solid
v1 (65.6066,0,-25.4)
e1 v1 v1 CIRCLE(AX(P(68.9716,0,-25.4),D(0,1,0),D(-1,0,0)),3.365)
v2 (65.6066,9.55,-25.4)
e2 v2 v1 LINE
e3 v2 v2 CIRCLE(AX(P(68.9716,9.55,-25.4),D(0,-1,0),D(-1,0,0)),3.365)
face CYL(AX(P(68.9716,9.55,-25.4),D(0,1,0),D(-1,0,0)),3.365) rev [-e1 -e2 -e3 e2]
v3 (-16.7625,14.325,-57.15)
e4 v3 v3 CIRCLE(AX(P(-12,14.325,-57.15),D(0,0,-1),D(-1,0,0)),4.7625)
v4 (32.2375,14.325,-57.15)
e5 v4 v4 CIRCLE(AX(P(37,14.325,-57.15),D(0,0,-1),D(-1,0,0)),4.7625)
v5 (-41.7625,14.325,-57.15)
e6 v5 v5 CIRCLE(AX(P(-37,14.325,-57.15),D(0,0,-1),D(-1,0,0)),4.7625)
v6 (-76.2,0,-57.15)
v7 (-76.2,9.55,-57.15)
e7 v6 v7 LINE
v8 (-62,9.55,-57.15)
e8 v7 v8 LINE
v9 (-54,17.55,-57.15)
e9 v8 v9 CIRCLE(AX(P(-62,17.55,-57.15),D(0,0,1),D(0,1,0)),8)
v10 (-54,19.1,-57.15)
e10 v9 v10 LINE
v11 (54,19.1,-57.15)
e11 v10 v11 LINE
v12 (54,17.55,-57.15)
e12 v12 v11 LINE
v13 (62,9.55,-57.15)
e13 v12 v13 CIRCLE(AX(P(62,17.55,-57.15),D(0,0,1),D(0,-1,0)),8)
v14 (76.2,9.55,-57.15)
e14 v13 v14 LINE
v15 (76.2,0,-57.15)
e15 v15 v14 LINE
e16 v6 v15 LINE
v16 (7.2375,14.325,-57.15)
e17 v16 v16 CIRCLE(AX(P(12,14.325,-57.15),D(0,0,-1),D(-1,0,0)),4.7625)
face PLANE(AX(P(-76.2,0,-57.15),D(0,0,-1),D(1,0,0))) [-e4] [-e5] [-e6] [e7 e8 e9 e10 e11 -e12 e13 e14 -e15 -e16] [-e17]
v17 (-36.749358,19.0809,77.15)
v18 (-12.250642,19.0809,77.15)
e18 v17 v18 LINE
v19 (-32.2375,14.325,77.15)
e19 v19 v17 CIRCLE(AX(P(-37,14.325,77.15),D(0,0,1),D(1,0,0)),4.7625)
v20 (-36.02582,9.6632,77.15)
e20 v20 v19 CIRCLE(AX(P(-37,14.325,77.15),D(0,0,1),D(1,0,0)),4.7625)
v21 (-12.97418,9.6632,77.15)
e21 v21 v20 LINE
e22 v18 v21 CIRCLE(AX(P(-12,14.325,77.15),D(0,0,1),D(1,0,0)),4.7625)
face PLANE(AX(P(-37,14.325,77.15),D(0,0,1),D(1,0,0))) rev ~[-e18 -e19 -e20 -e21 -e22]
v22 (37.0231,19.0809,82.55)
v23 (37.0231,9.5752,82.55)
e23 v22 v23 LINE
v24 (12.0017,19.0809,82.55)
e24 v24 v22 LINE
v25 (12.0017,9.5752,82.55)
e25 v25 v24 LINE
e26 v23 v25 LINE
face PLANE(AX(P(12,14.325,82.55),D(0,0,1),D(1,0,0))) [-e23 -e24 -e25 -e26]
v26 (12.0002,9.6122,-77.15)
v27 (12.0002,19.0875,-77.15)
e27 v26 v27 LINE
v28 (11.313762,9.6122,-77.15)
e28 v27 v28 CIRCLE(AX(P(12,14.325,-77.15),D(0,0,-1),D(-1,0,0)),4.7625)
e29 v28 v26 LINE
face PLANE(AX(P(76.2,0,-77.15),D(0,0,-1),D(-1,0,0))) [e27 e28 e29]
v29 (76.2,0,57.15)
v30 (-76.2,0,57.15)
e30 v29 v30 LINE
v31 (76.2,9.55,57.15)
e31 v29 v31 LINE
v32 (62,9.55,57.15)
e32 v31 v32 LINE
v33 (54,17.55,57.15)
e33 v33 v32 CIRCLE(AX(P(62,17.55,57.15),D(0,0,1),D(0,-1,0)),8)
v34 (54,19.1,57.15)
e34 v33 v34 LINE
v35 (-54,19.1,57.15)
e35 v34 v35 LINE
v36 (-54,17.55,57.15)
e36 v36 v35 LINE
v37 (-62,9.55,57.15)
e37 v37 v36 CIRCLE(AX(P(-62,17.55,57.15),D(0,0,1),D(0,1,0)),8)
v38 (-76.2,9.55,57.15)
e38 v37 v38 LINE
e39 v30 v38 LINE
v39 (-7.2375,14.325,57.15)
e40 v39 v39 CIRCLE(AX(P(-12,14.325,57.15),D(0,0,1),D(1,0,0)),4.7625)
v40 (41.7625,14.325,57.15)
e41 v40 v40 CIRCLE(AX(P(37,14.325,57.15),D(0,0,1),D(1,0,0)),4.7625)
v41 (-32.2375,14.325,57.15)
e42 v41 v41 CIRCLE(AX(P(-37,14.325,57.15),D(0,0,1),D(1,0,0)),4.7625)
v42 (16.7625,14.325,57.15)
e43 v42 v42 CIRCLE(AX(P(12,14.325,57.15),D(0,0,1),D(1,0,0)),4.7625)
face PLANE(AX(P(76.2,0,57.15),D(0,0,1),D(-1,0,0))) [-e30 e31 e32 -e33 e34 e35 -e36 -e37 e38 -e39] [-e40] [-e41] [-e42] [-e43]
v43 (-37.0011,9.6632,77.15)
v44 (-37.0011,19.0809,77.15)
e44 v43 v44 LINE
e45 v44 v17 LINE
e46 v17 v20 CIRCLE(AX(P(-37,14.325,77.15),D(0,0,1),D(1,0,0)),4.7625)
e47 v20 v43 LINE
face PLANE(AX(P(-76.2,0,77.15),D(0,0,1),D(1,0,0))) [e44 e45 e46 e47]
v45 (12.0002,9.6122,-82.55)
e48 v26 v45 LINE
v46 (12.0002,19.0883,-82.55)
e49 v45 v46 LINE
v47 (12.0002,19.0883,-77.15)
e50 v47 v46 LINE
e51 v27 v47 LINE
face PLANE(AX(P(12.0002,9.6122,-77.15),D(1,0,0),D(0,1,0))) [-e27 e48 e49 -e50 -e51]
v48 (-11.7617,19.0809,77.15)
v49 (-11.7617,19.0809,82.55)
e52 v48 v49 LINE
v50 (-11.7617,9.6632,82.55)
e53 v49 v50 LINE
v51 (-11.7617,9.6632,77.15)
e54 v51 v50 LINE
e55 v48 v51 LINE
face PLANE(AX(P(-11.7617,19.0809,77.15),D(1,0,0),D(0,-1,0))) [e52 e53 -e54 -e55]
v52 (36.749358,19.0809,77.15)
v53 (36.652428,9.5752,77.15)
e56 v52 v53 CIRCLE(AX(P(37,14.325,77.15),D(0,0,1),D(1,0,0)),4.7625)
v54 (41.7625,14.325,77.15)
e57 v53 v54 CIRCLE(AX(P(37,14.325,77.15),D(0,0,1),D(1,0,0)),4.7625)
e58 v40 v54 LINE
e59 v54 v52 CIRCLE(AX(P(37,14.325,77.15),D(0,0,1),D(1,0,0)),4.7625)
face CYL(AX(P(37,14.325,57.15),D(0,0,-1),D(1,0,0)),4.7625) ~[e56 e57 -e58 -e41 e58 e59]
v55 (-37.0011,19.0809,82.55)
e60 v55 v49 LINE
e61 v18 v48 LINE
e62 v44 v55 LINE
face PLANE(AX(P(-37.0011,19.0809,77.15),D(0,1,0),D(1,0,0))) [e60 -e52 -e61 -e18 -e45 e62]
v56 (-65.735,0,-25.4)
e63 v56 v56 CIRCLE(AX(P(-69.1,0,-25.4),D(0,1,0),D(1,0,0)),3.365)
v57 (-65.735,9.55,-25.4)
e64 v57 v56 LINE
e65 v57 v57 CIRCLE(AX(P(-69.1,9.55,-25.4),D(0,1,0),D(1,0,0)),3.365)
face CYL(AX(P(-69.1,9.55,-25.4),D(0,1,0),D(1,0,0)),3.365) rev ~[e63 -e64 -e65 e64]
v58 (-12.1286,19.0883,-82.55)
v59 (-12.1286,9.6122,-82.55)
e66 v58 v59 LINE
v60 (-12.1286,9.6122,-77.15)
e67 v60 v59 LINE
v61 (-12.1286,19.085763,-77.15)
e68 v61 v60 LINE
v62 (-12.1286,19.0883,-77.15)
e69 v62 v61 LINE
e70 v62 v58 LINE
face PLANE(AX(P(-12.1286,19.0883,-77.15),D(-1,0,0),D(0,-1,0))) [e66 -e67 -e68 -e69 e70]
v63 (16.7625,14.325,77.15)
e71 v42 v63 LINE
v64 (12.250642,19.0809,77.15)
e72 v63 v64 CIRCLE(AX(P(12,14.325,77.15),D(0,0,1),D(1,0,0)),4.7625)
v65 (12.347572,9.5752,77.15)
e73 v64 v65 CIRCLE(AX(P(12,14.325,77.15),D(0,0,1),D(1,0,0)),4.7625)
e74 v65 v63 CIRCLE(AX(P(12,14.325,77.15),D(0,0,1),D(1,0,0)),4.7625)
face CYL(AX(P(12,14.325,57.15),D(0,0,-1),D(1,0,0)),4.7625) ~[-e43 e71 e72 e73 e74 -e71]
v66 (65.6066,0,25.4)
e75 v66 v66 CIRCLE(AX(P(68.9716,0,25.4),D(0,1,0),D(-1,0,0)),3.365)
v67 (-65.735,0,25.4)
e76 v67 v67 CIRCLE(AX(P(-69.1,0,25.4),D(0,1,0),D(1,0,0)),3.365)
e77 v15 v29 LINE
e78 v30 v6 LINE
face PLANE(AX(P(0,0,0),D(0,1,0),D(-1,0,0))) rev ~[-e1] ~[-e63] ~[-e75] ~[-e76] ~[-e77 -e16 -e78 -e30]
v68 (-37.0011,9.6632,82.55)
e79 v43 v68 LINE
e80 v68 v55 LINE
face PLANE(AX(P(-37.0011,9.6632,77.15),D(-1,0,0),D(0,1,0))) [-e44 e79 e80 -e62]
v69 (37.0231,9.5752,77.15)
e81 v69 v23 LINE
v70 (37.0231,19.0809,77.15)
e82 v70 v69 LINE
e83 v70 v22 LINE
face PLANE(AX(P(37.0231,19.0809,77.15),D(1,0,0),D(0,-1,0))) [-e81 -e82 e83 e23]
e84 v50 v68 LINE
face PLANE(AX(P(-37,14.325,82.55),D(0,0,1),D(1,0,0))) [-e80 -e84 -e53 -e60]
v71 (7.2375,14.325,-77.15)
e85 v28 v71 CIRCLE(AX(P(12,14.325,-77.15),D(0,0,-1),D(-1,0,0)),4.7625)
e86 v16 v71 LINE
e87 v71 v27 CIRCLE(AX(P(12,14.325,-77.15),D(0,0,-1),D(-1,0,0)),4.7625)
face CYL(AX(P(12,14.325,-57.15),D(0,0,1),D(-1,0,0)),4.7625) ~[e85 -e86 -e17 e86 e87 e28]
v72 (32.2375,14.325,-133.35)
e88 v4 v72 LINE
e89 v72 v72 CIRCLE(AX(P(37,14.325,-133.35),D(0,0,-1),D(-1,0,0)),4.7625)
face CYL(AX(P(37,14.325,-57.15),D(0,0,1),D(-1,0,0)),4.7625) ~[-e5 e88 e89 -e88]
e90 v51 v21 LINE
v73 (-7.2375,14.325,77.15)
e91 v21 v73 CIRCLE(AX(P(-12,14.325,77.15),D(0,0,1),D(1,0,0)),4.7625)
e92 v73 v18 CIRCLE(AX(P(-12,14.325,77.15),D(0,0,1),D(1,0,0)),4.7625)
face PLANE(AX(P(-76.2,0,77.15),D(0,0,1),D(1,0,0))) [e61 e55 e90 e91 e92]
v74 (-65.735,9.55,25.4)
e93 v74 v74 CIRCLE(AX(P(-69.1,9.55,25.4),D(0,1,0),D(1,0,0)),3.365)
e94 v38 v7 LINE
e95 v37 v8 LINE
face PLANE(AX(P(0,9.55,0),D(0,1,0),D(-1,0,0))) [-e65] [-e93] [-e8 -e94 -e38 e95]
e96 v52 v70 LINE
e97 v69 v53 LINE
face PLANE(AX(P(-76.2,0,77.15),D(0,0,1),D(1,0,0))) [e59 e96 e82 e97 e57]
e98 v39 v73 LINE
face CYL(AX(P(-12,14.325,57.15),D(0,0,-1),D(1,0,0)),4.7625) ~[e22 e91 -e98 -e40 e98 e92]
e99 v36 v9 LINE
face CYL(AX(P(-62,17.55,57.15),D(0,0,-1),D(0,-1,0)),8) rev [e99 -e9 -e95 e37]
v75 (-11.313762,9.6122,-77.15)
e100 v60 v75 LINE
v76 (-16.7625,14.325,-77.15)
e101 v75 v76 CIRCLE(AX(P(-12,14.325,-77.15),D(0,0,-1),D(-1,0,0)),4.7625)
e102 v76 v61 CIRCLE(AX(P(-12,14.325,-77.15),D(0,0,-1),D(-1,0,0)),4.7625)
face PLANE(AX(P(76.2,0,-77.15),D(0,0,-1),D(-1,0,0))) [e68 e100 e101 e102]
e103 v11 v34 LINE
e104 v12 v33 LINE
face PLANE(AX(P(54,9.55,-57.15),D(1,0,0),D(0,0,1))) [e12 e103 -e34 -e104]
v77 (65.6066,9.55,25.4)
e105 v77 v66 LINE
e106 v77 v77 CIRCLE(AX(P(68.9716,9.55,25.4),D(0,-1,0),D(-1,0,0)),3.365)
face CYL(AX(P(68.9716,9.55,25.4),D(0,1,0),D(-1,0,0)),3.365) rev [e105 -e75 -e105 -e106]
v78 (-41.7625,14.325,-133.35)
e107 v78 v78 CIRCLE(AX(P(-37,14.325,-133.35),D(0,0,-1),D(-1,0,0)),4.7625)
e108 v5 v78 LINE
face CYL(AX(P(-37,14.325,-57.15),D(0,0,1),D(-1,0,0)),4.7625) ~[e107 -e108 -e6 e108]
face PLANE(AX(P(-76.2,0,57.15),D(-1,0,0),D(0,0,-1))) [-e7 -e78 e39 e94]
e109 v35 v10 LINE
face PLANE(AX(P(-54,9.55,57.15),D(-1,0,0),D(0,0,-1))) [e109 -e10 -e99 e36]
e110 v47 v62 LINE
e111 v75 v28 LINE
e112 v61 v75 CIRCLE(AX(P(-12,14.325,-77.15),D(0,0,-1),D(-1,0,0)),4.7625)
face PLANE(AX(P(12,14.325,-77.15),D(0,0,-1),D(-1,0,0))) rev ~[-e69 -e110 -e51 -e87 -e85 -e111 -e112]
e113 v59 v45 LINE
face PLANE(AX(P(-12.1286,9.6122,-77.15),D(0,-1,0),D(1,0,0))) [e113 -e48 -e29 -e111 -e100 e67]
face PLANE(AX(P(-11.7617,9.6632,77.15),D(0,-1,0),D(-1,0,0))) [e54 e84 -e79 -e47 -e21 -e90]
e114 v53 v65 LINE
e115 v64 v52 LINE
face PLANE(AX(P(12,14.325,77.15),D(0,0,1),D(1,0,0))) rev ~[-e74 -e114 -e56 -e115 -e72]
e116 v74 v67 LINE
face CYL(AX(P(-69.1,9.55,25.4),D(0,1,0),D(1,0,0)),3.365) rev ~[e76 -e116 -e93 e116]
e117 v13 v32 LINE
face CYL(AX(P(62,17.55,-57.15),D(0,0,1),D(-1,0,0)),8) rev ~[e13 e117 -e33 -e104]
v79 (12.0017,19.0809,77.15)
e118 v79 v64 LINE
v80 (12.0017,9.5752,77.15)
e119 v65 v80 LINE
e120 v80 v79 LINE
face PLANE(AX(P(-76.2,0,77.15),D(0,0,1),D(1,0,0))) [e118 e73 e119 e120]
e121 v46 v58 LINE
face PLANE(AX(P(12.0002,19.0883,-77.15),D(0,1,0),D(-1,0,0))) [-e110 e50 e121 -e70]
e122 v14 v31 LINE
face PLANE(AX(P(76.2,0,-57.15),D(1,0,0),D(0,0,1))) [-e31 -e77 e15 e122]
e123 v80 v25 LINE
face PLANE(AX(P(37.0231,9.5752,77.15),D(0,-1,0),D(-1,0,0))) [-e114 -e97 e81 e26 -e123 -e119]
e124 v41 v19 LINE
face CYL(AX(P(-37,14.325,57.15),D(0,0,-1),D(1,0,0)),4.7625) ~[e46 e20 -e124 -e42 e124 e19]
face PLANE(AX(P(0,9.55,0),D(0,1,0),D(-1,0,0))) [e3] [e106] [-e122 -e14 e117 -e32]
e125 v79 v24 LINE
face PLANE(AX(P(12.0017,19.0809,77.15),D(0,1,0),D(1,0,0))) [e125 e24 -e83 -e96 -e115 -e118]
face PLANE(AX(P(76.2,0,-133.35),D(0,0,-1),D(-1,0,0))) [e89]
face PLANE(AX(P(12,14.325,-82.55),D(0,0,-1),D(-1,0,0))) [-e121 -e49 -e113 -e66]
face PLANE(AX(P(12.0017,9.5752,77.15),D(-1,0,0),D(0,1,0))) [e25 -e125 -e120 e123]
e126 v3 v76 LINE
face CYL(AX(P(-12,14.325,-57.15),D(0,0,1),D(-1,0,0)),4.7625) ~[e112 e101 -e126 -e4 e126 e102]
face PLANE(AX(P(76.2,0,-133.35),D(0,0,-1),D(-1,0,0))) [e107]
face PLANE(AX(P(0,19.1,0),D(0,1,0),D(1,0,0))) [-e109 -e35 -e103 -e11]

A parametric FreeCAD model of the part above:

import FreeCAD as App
import Part
import Sketcher
Q = App.Units.Quantity


def edges_at(feature, points):
    """Names of the edges that pass closest to the given points."""
    edges = feature.Shape.Edges
    near = lambda p: min(range(len(edges)), key=lambda i: edges[i].distToShape(Part.Vertex(*p))[0])
    return sorted({f"Edge{near(p) + 1}" for p in points})


def add_polygon(sketch, points):
    """Adds a closed chain of lines whose ends are joined by coincident constraints."""
    first, n = sketch.GeometryCount, len(points)
    for a, b in zip(points, points[1:] + points[:1]):
        sketch.addGeometry(Part.LineSegment(App.Vector(*a, 0), App.Vector(*b, 0)), False)
    for i in range(n):
        sketch.addConstraint(Sketcher.Constraint("Coincident", first + i, 2, first + (i + 1) % n, 1))

doc = App.newDocument("Part")
body = doc.addObject("PartDesign::Body", "Body")

# Sketch on XZ plane
sketch1 = body.newObject("Sketcher::SketchObject", "Sketch")
sketch1.AttachmentSupport = (doc.getObject("XZ_Plane"), [""])
sketch1.MapMode = "FlatFace"
add_polygon(sketch1, [(-76.2, 57.15), (76.2, 57.15), (76.2, -57.15), (-76.2, -57.15)])  # lines 0-3
sketch1.addConstraint(Sketcher.Constraint("Horizontal", 0))
sketch1.addConstraint(Sketcher.Constraint("Vertical", 1))
sketch1.addConstraint(Sketcher.Constraint("Horizontal", 2))
sketch1.addConstraint(Sketcher.Constraint("Vertical", 3))
sketch1.addConstraint(Sketcher.Constraint("Symmetric", 0, 2, 2, 2, -1, 1))
sketch1.addConstraint(Sketcher.Constraint("DistanceX", 0, 1, 0, 2, Q("6 in")))
sketch1.addConstraint(Sketcher.Constraint("DistanceY", 1, 2, 1, 1, Q("4.5 in")))
pad1 = body.newObject("PartDesign::Pad", "Pad")
pad1.Profile = sketch1
pad1.Length = 9.55
pad1.Reversed = True

# Sketch on XZ plane
sketch2 = body.newObject("Sketcher::SketchObject", "Sketch001")
sketch2.AttachmentSupport = (doc.getObject("XZ_Plane"), [""])
sketch2.MapMode = "FlatFace"
sketch2.AttachmentOffset = App.Placement(App.Vector(0, 0, -9.55), App.Rotation())
add_polygon(sketch2, [(-54, 57.15), (54, 57.15), (54, -57.15), (-54, -57.15)])  # lines 0-3
sketch2.addConstraint(Sketcher.Constraint("Horizontal", 0))
sketch2.addConstraint(Sketcher.Constraint("Vertical", 1))
sketch2.addConstraint(Sketcher.Constraint("Horizontal", 2))
sketch2.addConstraint(Sketcher.Constraint("Vertical", 3))
sketch2.addConstraint(Sketcher.Constraint("Symmetric", 0, 2, 2, 2, -1, 1))
sketch2.addConstraint(Sketcher.Constraint("DistanceY", 1, 2, 1, 1, Q("4.5 in")))
sketch2.addConstraint(Sketcher.Constraint("DistanceX", 0, 1, 0, 2, Q("108 mm")))
pad2 = body.newObject("PartDesign::Pad", "Pad001")
pad2.Profile = sketch2
pad2.Length = 9.55
pad2.Reversed = True
doc.recompute()

fillet = body.newObject("PartDesign::Fillet", "Fillet")
fillet.Base = (pad2, edges_at(pad2, [(-54, 9.55, 0)]))
fillet.Radius = 8
doc.recompute()

fillet2 = body.newObject("PartDesign::Fillet", "Fillet001")
fillet2.Base = (fillet, edges_at(fillet, [(54, 9.55, 0)]))
fillet2.Radius = 8

# Sketch on XY plane
sketch3 = body.newObject("Sketcher::SketchObject", "Sketch002")
sketch3.AttachmentSupport = (doc.getObject("XY_Plane"), [""])
sketch3.MapMode = "FlatFace"
sketch3.AttachmentOffset = App.Placement(App.Vector(0, 0, 2.25 * 25.4), App.Rotation())
sketch3.addGeometry(Part.Circle(App.Vector(-37, 14.325, 0), App.Vector(0, 0, 1), 4.7625), False)
sketch3.addGeometry(Part.Circle(App.Vector(-12, 14.325, 0), App.Vector(0, 0, 1), 4.7625), False)
sketch3.addGeometry(Part.Circle(App.Vector(12, 14.325, 0), App.Vector(0, 0, 1), 4.7625), False)
sketch3.addGeometry(Part.Circle(App.Vector(37, 14.325, 0), App.Vector(0, 0, 1), 4.7625), False)
sketch3.addConstraint(Sketcher.Constraint("Equal", 0, 1))
sketch3.addConstraint(Sketcher.Constraint("Equal", 1, 2))
sketch3.addConstraint(Sketcher.Constraint("Equal", 2, 3))
sketch3.addConstraint(Sketcher.Constraint("Symmetric", 1, 3, 2, 3, -2))
sketch3.addConstraint(Sketcher.Constraint("Symmetric", 0, 3, 3, 3, -2))
sketch3.addConstraint(Sketcher.Constraint("Horizontal", 0, 3, 1, 3))
sketch3.addConstraint(Sketcher.Constraint("Diameter", 0, Q("0.375 in")))
sketch3.addConstraint(Sketcher.Constraint("DistanceX", 0, 3, 1, 3, Q("25 mm")))
sketch3.addConstraint(Sketcher.Constraint("DistanceX", 0, 3, -1, 1, Q("1.4567 in")))
sketch3.addConstraint(Sketcher.Constraint("DistanceY", -1, 1, 0, 3, Q("14.325 mm")))
pad3 = body.newObject("PartDesign::Pad", "Pad002")
pad3.Profile = sketch3
pad3.Length = Q("0.7874016 in")

# Sketch on XY plane
sketch4 = body.newObject("Sketcher::SketchObject", "Sketch003")
sketch4.AttachmentSupport = (doc.getObject("XY_Plane"), [""])
sketch4.MapMode = "FlatFace"
sketch4.AttachmentOffset = App.Placement(App.Vector(0, 0, 3.0374016 * 25.4), App.Rotation())
add_polygon(sketch4, [(-11.7617, 19.0809), (-37.0011, 19.0809), (-37.0011, 9.6632), (-11.7617, 9.6632)])  # lines 0-3
sketch4.addConstraint(Sketcher.Constraint("Horizontal", 0))
sketch4.addConstraint(Sketcher.Constraint("Vertical", 1))
sketch4.addConstraint(Sketcher.Constraint("Horizontal", 2))
sketch4.addConstraint(Sketcher.Constraint("Vertical", 3))
sketch4.addConstraint(Sketcher.Constraint("DistanceX", 0, 2, 0, 1, Q("25.2394 mm")))
sketch4.addConstraint(Sketcher.Constraint("DistanceY", 1, 2, 1, 1, Q("9.4177 mm")))
sketch4.addConstraint(Sketcher.Constraint("DistanceX", 0, 2, -1, 1, Q("37.001 mm")))
sketch4.addConstraint(Sketcher.Constraint("DistanceY", -1, 1, 0, 2, Q("19.081 mm")))
pad4 = body.newObject("PartDesign::Pad", "Pad003")
pad4.Profile = sketch4
pad4.Length = Q("0.2125984 in")

# Sketch on XY plane
sketch5 = body.newObject("Sketcher::SketchObject", "Sketch004")
sketch5.AttachmentSupport = (doc.getObject("XY_Plane"), [""])
sketch5.MapMode = "FlatFace"
sketch5.AttachmentOffset = App.Placement(App.Vector(0, 0, 3.0374016 * 25.4), App.Rotation())
add_polygon(sketch5, [(37.0231, 19.0809), (12.0017, 19.0809), (12.0017, 9.5752), (37.0231, 9.5752)])  # lines 0-3
sketch5.addConstraint(Sketcher.Constraint("Horizontal", 0))
sketch5.addConstraint(Sketcher.Constraint("Vertical", 1))
sketch5.addConstraint(Sketcher.Constraint("Horizontal", 2))
sketch5.addConstraint(Sketcher.Constraint("Vertical", 3))
sketch5.addConstraint(Sketcher.Constraint("DistanceX", 0, 2, 0, 1, Q("0.9851 in")))
sketch5.addConstraint(Sketcher.Constraint("DistanceY", 1, 2, 1, 1, Q("9.5057 mm")))
sketch5.addConstraint(Sketcher.Constraint("DistanceX", -1, 1, 0, 2, Q("0.4725 in")))
sketch5.addConstraint(Sketcher.Constraint("DistanceY", -1, 1, 0, 2, Q("19.081 mm")))
pad5 = body.newObject("PartDesign::Pad", "Pad004")
pad5.Profile = sketch5
pad5.Length = Q("0.2125984 in")

# Sketch on XY plane
sketch6 = body.newObject("Sketcher::SketchObject", "Sketch005")
sketch6.AttachmentSupport = (doc.getObject("XY_Plane"), [""])
sketch6.MapMode = "FlatFace"
sketch6.AttachmentOffset = App.Placement(App.Vector(0, 0, -2.25 * 25.4), App.Rotation())
sketch6.addGeometry(Part.Circle(App.Vector(37, 14.325, 0), App.Vector(0, 0, 1), 4.7625), False)
sketch6.addGeometry(Part.Circle(App.Vector(-37, 14.325, 0), App.Vector(0, 0, 1), 4.7625), False)
sketch6.addConstraint(Sketcher.Constraint("Equal", 0, 1))
sketch6.addConstraint(Sketcher.Constraint("Symmetric", 0, 3, 1, 3, -2))
sketch6.addConstraint(Sketcher.Constraint("Diameter", 0, Q("0.375 in")))
sketch6.addConstraint(Sketcher.Constraint("DistanceX", -1, 1, 0, 3, Q("1.4567 in")))
sketch6.addConstraint(Sketcher.Constraint("DistanceY", -1, 1, 0, 3, Q("14.325 mm")))
pad6 = body.newObject("PartDesign::Pad", "Pad005")
pad6.Profile = sketch6
pad6.Length = Q("3 in")
pad6.Reversed = True

# Sketch on XY plane
sketch7 = body.newObject("Sketcher::SketchObject", "Sketch006")
sketch7.AttachmentSupport = (doc.getObject("XY_Plane"), [""])
sketch7.MapMode = "FlatFace"
sketch7.AttachmentOffset = App.Placement(App.Vector(0, 0, -2.25 * 25.4), App.Rotation())
sketch7.addGeometry(Part.Circle(App.Vector(12, 14.325, 0), App.Vector(0, 0, 1), 4.7625), False)
sketch7.addGeometry(Part.Circle(App.Vector(-12, 14.325, 0), App.Vector(0, 0, 1), 4.7625), False)
sketch7.addConstraint(Sketcher.Constraint("Equal", 0, 1))
sketch7.addConstraint(Sketcher.Constraint("Symmetric", 0, 3, 1, 3, -2))
sketch7.addConstraint(Sketcher.Constraint("Diameter", 0, Q("0.375 in")))
sketch7.addConstraint(Sketcher.Constraint("DistanceX", -1, 1, 0, 3, Q("12 mm")))
sketch7.addConstraint(Sketcher.Constraint("DistanceY", -1, 1, 0, 3, Q("14.325 mm")))
pad7 = body.newObject("PartDesign::Pad", "Pad006")
pad7.Profile = sketch7
pad7.Length = Q("0.7874016 in")
pad7.Reversed = True

# Sketch on XY plane
sketch8 = body.newObject("Sketcher::SketchObject", "Sketch007")
sketch8.AttachmentSupport = (doc.getObject("XY_Plane"), [""])
sketch8.MapMode = "FlatFace"
sketch8.AttachmentOffset = App.Placement(App.Vector(0, 0, -3.0374016 * 25.4), App.Rotation())
add_polygon(sketch8, [(-12.1286, 19.0883), (12.0002, 19.0883), (12.0002, 9.6122), (-12.1286, 9.6122)])  # lines 0-3
sketch8.addConstraint(Sketcher.Constraint("Horizontal", 0))
sketch8.addConstraint(Sketcher.Constraint("Vertical", 1))
sketch8.addConstraint(Sketcher.Constraint("Horizontal", 2))
sketch8.addConstraint(Sketcher.Constraint("Vertical", 3))
sketch8.addConstraint(Sketcher.Constraint("DistanceX", 0, 1, 0, 2, Q("24.1288 mm")))
sketch8.addConstraint(Sketcher.Constraint("DistanceY", 1, 2, 1, 1, Q("9.476 mm")))
sketch8.addConstraint(Sketcher.Constraint("DistanceY", -1, 1, 0, 2, Q("0.7515 in")))
sketch8.addConstraint(Sketcher.Constraint("DistanceX", 2, 2, -1, 1, Q("0.4775 in")))
pad8 = body.newObject("PartDesign::Pad", "Pad007")
pad8.Profile = sketch8
pad8.Length = Q("0.2125984 in")
pad8.Reversed = True

# Sketch on XZ plane
sketch9 = body.newObject("Sketcher::SketchObject", "Sketch008")
sketch9.AttachmentSupport = (doc.getObject("XZ_Plane"), [""])
sketch9.MapMode = "FlatFace"
sketch9.AttachmentOffset = App.Placement(App.Vector(0, 0, -9.55), App.Rotation())
sketch9.addGeometry(Part.Circle(App.Vector(-69.1, -25.4, 0), App.Vector(0, 0, 1), 3.365), False)
sketch9.addGeometry(Part.Circle(App.Vector(-69.1, 25.4, 0), App.Vector(0, 0, 1), 3.365), False)
sketch9.addConstraint(Sketcher.Constraint("Equal", 0, 1))
sketch9.addConstraint(Sketcher.Constraint("Symmetric", 0, 3, 1, 3, -1))
sketch9.addConstraint(Sketcher.Constraint("DistanceY", 0, 3, -1, 1, Q("1 in")))
sketch9.addConstraint(Sketcher.Constraint("Diameter", 0, Q("6.73 mm")))
sketch9.addConstraint(Sketcher.Constraint("DistanceX", 0, 3, -1, 1, Q("69.1 mm")))
pocket1 = body.newObject("PartDesign::Pocket", "Pocket")
pocket1.Profile = sketch9
pocket1.Length = Q("0.3937008 in")
pocket1.Reversed = True
doc.recompute()

datumplane = body.newObject("PartDesign::Plane", "DatumPlane")
datumplane.AttachmentSupport = (doc.getObject("YZ_Plane"), [""])
datumplane.MapMode = "FlatFace"
datumplane.AttachmentOffset = App.Placement(App.Vector(0, 0, -0.0642), App.Rotation())
mirrored = body.newObject("PartDesign::Mirrored", "Mirrored")
mirrored.Originals = [pocket1]
mirrored.MirrorPlane = (datumplane, [""])
body.Tip = mirrored

doc.recompute()
